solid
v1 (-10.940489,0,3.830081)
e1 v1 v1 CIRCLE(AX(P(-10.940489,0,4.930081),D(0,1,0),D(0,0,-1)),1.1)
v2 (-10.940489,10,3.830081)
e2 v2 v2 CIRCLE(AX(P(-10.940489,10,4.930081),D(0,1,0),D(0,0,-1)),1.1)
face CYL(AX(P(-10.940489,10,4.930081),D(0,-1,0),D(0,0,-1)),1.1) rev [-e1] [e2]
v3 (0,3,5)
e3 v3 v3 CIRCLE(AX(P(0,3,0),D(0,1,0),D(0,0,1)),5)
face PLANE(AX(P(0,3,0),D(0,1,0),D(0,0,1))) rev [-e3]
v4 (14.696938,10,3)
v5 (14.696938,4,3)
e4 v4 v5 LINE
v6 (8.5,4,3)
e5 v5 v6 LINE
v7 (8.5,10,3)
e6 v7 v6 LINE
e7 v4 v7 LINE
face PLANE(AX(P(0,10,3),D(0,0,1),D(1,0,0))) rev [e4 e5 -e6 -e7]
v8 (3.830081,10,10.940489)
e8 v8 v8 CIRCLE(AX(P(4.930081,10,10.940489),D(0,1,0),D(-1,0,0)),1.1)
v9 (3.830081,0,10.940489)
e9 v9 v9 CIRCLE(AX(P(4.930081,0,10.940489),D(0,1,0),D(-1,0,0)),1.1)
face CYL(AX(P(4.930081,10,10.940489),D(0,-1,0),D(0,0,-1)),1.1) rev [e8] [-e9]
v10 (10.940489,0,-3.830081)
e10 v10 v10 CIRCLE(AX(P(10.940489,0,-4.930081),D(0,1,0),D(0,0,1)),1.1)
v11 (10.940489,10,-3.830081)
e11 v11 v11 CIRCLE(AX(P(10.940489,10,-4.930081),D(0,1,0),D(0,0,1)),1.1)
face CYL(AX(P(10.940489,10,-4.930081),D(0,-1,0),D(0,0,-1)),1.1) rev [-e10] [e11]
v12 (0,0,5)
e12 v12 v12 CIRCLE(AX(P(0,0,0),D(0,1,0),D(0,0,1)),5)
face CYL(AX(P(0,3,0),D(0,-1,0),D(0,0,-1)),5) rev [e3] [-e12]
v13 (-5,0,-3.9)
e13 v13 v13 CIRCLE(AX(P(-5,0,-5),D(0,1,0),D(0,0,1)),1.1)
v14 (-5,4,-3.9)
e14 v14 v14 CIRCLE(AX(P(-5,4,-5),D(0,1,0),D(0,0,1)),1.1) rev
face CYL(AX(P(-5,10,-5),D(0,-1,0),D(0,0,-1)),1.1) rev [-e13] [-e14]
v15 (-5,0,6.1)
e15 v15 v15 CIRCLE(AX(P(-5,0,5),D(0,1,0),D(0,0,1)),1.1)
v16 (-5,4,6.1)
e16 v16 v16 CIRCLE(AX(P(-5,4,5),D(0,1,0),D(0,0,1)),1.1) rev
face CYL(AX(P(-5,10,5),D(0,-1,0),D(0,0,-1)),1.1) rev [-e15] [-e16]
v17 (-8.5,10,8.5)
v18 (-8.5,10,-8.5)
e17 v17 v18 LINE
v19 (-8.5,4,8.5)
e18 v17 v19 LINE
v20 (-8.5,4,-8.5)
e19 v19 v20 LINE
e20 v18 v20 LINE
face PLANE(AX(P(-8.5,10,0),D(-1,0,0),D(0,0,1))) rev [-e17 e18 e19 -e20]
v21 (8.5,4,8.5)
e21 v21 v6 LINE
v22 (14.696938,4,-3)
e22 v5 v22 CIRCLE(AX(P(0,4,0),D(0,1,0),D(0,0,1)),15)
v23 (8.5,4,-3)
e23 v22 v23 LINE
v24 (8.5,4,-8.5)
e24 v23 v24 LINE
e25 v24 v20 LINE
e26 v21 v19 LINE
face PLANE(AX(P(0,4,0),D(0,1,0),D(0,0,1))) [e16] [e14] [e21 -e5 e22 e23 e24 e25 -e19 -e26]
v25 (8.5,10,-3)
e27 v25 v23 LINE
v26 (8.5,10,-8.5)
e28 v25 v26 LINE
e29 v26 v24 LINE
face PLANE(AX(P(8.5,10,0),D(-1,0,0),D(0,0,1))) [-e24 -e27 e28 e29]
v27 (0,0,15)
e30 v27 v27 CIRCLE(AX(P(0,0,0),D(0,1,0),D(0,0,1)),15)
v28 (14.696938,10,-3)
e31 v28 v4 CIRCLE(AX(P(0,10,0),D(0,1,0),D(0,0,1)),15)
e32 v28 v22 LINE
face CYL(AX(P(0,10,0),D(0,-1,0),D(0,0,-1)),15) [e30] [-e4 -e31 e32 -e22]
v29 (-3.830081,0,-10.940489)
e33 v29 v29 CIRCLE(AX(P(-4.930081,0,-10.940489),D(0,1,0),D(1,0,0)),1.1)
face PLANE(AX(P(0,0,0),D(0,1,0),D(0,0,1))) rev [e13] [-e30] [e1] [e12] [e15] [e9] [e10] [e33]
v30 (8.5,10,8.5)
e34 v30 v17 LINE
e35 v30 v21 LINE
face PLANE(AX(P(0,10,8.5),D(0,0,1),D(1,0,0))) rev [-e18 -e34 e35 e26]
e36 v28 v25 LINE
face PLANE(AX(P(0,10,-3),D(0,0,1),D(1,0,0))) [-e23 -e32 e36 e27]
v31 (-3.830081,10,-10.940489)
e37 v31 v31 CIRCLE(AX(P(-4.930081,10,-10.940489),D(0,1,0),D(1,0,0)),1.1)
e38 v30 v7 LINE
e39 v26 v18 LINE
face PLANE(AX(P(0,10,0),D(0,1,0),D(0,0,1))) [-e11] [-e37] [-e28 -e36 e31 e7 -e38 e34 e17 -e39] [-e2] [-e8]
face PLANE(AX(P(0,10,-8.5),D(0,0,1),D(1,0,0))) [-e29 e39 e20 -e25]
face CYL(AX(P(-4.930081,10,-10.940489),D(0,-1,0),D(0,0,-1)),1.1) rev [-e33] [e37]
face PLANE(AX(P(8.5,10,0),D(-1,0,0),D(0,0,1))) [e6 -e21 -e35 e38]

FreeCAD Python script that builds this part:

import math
import FreeCAD as App
import Part
import Sketcher

V = App.Vector

doc = App.newDocument("Part")
params = doc.addObject("Spreadsheet::Sheet", "Params")
for row, (alias, value) in enumerate([
    ("sketch1_radius", "15 mm"),
    ("pad1_length", "10 mm"),
    ("sketch2_radius", "15 mm"),
    ("sketch2_radius2", "1.1 mm"),
    ("sketch2_width", "17 mm"),
    ("sketch2_height", "5.5 mm"),
    ("pocket1_length", "6 mm"),
    ("sketch3_diameter", "2.2 mm"),
    ("sketch4_diameter", "10 mm"),
    ("pocket3_length", "3 mm"),
    ("sketch5_diameter", "2.2 mm"),
], start=1):
    params.set(f"A{row}", alias)
    params.set(f"B{row}", "=" + value)
    params.setAlias(f"B{row}", alias)

body = doc.addObject("PartDesign::Body", "Body")

# Sketch on XZ plane
sketch1 = doc.addObject("Sketcher::SketchObject", "Sketch")
body.addObject(sketch1)
sketch1.AttachmentSupport = (doc.XZ_Plane, [""])
sketch1.MapMode = "FlatFace"
sketch1.addGeometry([
    Part.ArcOfCircle(Part.Circle(V(0, 0, 0), V(0, 0, 1), 15), math.radians(180), math.radians(348)),
    Part.ArcOfCircle(Part.Circle(V(0, 0, 0), V(0, 0, 1), 15), math.radians(12), math.radians(180)),
    Part.ArcOfCircle(Part.Circle(V(0, 0, 0), V(0, 0, 1), 15), math.radians(0), math.radians(11.54)),
    Part.ArcOfCircle(Part.Circle(V(0, 0, 0), V(0, 0, 1), 15), math.radians(-11.54), math.radians(0)),
], False)
sketch1.addConstraint([
    Sketcher.Constraint("Tangent", 0, 1, 1, 2),
    Sketcher.Constraint("Tangent", 1, 1, 2, 2),
    Sketcher.Constraint("Tangent", 2, 1, 3, 2),
    Sketcher.Constraint("Tangent", 3, 1, 0, 2),
    Sketcher.Constraint("Coincident", 0, 3, -1, 1),
    Sketcher.Constraint("Equal", 0, 1),
    Sketcher.Constraint("PointOnObject", 0, 1, -1),
    Sketcher.Constraint("PointOnObject", 2, 1, -1),
    Sketcher.Constraint("Vertical", 1, 1, 3, 1),
    Sketcher.Constraint("Radius", 0, 15.0),
    Sketcher.Constraint("DistanceY", -1, 1, 1, 1, 3.0),
])
sketch1.setExpression("Constraints[9]", "Params.sketch1_radius")
pad1 = doc.addObject("PartDesign::Pad", "Pad")
body.addObject(pad1)
pad1.Profile = sketch1
pad1.setExpression("Length", "Params.pad1_length")
pad1.Reversed = True

# Sketch on XZ plane
sketch2 = doc.addObject("Sketcher::SketchObject", "Sketch001")
body.addObject(sketch2)
sketch2.AttachmentSupport = (doc.XZ_Plane, [""])
sketch2.MapMode = "FlatFace"
sketch2.AttachmentOffset = App.Placement(V(0, 0, -4), App.Rotation())
sketch2.addGeometry([
    Part.LineSegment(V(-8.5, -8.5, 0), V(-8.5, 8.5, 0)),  # 0
    Part.LineSegment(V(-8.5, 8.5, 0), V(8.5, 8.5, 0)),  # 1
    Part.LineSegment(V(8.5, 8.5, 0), V(8.5, 3, 0)),  # 2
    Part.LineSegment(V(8.5, 3, 0), V(14.7, 3, 0)),  # 3
    Part.ArcOfCircle(Part.Circle(V(0, 0, 0), V(0, 0, 1), 15), math.radians(0), math.radians(11.54)),  # 4
    Part.ArcOfCircle(Part.Circle(V(0, 0, 0), V(0, 0, 1), 15), math.radians(-11.54), math.radians(0)),  # 5
    Part.LineSegment(V(14.7, -3, 0), V(8.5, -3, 0)),  # 6
    Part.LineSegment(V(8.5, -3, 0), V(8.5, -8.5, 0)),  # 7
    Part.LineSegment(V(8.5, -8.5, 0), V(-8.5, -8.5, 0)),  # 8
    Part.ArcOfCircle(Part.Circle(V(-5, 5, 0), V(0, 0, 1), 1.1), math.radians(-90), math.radians(0)),  # 9
    Part.ArcOfCircle(Part.Circle(V(-5, 5, 0), V(0, 0, 1), 1.1), math.radians(0), math.radians(270)),  # 10
    Part.ArcOfCircle(Part.Circle(V(-5, -5, 0), V(0, 0, 1), 1.1), math.radians(90), math.radians(360)),  # 11
    Part.ArcOfCircle(Part.Circle(V(-5, -5, 0), V(0, 0, 1), 1.1), math.radians(0), math.radians(90)),  # 12
], False)
sketch2.addConstraint([
    Sketcher.Constraint("Coincident", 0, 2, 1, 1),
    Sketcher.Constraint("Coincident", 1, 2, 2, 1),
    Sketcher.Constraint("Coincident", 2, 2, 3, 1),
    Sketcher.Constraint("Coincident", 3, 2, 4, 2),
    Sketcher.Constraint("Tangent", 4, 1, 5, 2),
    Sketcher.Constraint("Coincident", 5, 1, 6, 1),
    Sketcher.Constraint("Coincident", 6, 2, 7, 1),
    Sketcher.Constraint("Coincident", 7, 2, 8, 1),
    Sketcher.Constraint("Coincident", 8, 2, 0, 1),
    Sketcher.Constraint("Tangent", 9, 1, 10, 2),
    Sketcher.Constraint("Coincident", 10, 1, 9, 2),
    Sketcher.Constraint("Tangent", 11, 1, 12, 2),
    Sketcher.Constraint("Coincident", 12, 1, 11, 2),
    Sketcher.Constraint("Vertical", 0),
    Sketcher.Constraint("Horizontal", 1),
    Sketcher.Constraint("Vertical", 2),
    Sketcher.Constraint("Horizontal", 3),
    Sketcher.Constraint("Horizontal", 6),
    Sketcher.Constraint("Vertical", 7),
    Sketcher.Constraint("Horizontal", 8),
    Sketcher.Constraint("Coincident", 4, 3, -1, 1),
    Sketcher.Constraint("Equal", 4, 5),
    Sketcher.Constraint("Equal", 10, 11),
    Sketcher.Constraint("Symmetric", 0, 2, 7, 2, -1, 1),
    Sketcher.Constraint("Symmetric", 9, 3, 11, 3, -1),
    Sketcher.Constraint("Symmetric", 2, 2, 6, 2, -1),
    Sketcher.Constraint("PointOnObject", 4, 1, -1),
    Sketcher.Constraint("Horizontal", 9, 3, 10, 1),
    Sketcher.Constraint("Horizontal", 11, 3, 12, 1),
    Sketcher.Constraint("Vertical", 12, 3, 9, 1),
    Sketcher.Constraint("Vertical", 9, 1, 11, 1),
    Sketcher.Constraint("Equal", 8, 0),
    Sketcher.Constraint("Radius", 4, 15.0),
    Sketcher.Constraint("Radius", 9, 1.1),
    Sketcher.Constraint("DistanceX", 1, 1, 1, 2, 17.0),
    Sketcher.Constraint("DistanceY", 2, 2, 2, 1, 5.5),
    Sketcher.Constraint("DistanceX", 9, 3, -1, 1, 5.0),
    Sketcher.Constraint("DistanceY", -1, 1, 9, 3, 5.0),
])
sketch2.setExpression("Constraints[32]", "Params.sketch2_radius")
sketch2.setExpression("Constraints[33]", "Params.sketch2_radius2")
sketch2.setExpression("Constraints[34]", "Params.sketch2_width")
sketch2.setExpression("Constraints[35]", "Params.sketch2_height")
pocket1 = doc.addObject("PartDesign::Pocket", "Pocket")
body.addObject(pocket1)
pocket1.Profile = sketch2
pocket1.setExpression("Length", "Params.pocket1_length")

# Sketch on XZ plane
sketch3 = doc.addObject("Sketcher::SketchObject", "Sketch002")
body.addObject(sketch3)
sketch3.AttachmentSupport = (doc.XZ_Plane, [""])
sketch3.MapMode = "FlatFace"
sketch3.addGeometry([
    Part.Circle(V(-5, -5, 0), V(0, 0, 1), 1.1),
    Part.Circle(V(-5, 5, 0), V(0, 0, 1), 1.1),
], False)
sketch3.addConstraint([
    Sketcher.Constraint("Equal", 0, 1),
    Sketcher.Constraint("Symmetric", 0, 3, 1, 3, -1),
    Sketcher.Constraint("Diameter", 0, 2.2),
    Sketcher.Constraint("DistanceX", 0, 3, -1, 1, 5.0),
    Sketcher.Constraint("DistanceY", 0, 3, -1, 1, 5.0),
])
sketch3.setExpression("Constraints[2]", "Params.sketch3_diameter")
pocket2 = doc.addObject("PartDesign::Pocket", "Pocket001")
body.addObject(pocket2)
pocket2.Profile = sketch3
pocket2.Type = "ThroughAll"

# Sketch on XZ plane
sketch4 = doc.addObject("Sketcher::SketchObject", "Sketch003")
body.addObject(sketch4)
sketch4.AttachmentSupport = (doc.XZ_Plane, [""])
sketch4.MapMode = "FlatFace"
sketch4.addGeometry(Part.Circle(V(0, 0, 0), V(0, 0, 1), 5), False)
sketch4.addConstraint([
    Sketcher.Constraint("Coincident", 0, 3, -1, 1),
    Sketcher.Constraint("Diameter", 0, 10.0),
])
sketch4.setExpression("Constraints[1]", "Params.sketch4_diameter")
pocket3 = doc.addObject("PartDesign::Pocket", "Pocket002")
body.addObject(pocket3)
pocket3.Profile = sketch4
pocket3.setExpression("Length", "Params.pocket3_length")

# Sketch on XZ plane
sketch5 = doc.addObject("Sketcher::SketchObject", "Sketch004")
body.addObject(sketch5)
sketch5.AttachmentSupport = (doc.XZ_Plane, [""])
sketch5.MapMode = "FlatFace"
sketch5.addGeometry(Part.Circle(V(10.9, -4.9, 0), V(0, 0, 1), 1.1), False)
sketch5.addConstraint([
    Sketcher.Constraint("Diameter", 0, 2.2),
    Sketcher.Constraint("DistanceX", -1, 1, 0, 3, 10.940489),
    Sketcher.Constraint("DistanceY", 0, 3, -1, 1, 4.930081),
])
sketch5.setExpression("Constraints[0]", "Params.sketch5_diameter")
pocket4 = doc.addObject("PartDesign::Pocket", "Pocket003")
body.addObject(pocket4)
pocket4.Profile = sketch5
pocket4.Type = "ThroughAll"
doc.recompute()

polarpattern = doc.addObject("PartDesign::PolarPattern", "PolarPattern")
body.addObject(polarpattern)
polarpattern.Originals = [pocket4]
polarpattern.Axis = (doc.Y_Axis, [""])
polarpattern.Angle = 360
polarpattern.Occurrences = 4
body.Tip = polarpattern

doc.recompute()
